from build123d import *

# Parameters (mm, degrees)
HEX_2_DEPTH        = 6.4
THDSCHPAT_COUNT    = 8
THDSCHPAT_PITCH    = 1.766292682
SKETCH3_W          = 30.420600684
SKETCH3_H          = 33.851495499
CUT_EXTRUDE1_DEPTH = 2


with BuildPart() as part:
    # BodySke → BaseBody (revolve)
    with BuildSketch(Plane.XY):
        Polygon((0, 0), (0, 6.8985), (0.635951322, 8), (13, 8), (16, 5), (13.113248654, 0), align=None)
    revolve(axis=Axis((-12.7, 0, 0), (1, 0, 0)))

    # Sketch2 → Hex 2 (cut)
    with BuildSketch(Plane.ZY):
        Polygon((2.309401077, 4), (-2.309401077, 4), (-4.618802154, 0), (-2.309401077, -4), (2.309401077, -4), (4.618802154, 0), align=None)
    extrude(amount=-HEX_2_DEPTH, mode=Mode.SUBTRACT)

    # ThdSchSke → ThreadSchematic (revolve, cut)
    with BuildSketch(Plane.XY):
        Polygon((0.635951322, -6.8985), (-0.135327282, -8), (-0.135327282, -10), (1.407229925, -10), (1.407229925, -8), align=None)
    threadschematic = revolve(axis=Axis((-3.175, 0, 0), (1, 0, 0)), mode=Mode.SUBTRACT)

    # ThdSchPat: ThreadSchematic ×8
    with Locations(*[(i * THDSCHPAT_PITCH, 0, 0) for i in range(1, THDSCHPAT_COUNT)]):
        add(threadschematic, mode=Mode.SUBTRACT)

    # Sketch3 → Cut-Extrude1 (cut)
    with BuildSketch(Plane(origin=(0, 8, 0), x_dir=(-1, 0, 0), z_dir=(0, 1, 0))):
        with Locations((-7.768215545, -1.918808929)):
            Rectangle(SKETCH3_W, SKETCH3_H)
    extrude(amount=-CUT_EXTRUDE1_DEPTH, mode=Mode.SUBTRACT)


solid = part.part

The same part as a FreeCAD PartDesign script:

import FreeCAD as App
import Part
import Sketcher

V = App.Vector
Q = App.Units.Quantity


def add_polygon(sketch, points):
    """Adds a closed chain of lines whose ends are joined by coincident constraints."""
    first, n = sketch.GeometryCount, len(points)
    for a, b in zip(points, points[1:] + points[:1]):
        sketch.addGeometry(Part.LineSegment(App.Vector(*a, 0), App.Vector(*b, 0)), False)
    for i in range(n):
        sketch.addConstraint(Sketcher.Constraint("Coincident", first + i, 2, first + (i + 1) % n, 1))

doc = App.newDocument("Part")
body = doc.addObject("PartDesign::Body", "Body")

sketch1 = body.newObject("Sketcher::SketchObject", "Sketch")
sketch1.AttachmentSupport = (doc.getObject("XY_Plane"), [""])
sketch1.MapMode = "FlatFace"
add_polygon(sketch1, [(0, 6.8985), (0, 0), (13.113249, 0), (16, 5), (13, 8), (0.635951, 8)])
sketch1.addConstraint([
    Sketcher.Constraint("Vertical", 0),
    Sketcher.Constraint("Horizontal", 1),
    Sketcher.Constraint("Horizontal", 4),
    Sketcher.Constraint("Coincident", 0, 2, -1, 1),
    Sketcher.Constraint("Parallel", 2, 5),
    Sketcher.Constraint("Angle", 2, Q("60 deg")),
    Sketcher.Constraint("Angle", 3, Q("135 deg")),
    Sketcher.Constraint("DistanceX", -1, 1, 2, 2, 16.0),
    Sketcher.Constraint("DistanceY", -1, 1, 2, 2, 5.0),
    Sketcher.Constraint("DistanceX", -1, 1, 3, 2, 13.0),
    Sketcher.Constraint("DistanceY", 0, 2, 0, 1, 6.8985),
])
revolution = body.newObject("PartDesign::Revolution", "Revolution")
revolution.Profile = sketch1
revolution.ReferenceAxis = (sketch1, ["H_Axis"])
revolution.Angle = 360

sketch2 = body.newObject("Sketcher::SketchObject", "Sketch001")
sketch2.AttachmentSupport = (doc.getObject("YZ_Plane"), [""])
sketch2.MapMode = "FlatFace"
add_polygon(sketch2, [(4, 2.309401), (4, -2.309401), (0, -4.618802), (-4, -2.309401), (-4, 2.309401), (0, 4.618802)])
sketch2.addConstraint([
    Sketcher.Constraint("Vertical", 0),
    Sketcher.Constraint("Vertical", 3),
    Sketcher.Constraint("Symmetric", 0, 2, 3, 2, -1, 1),
    Sketcher.Constraint("Symmetric", 1, 2, 4, 2, -1, 1),
    Sketcher.Constraint("PointOnObject", 1, 2, -2),
    Sketcher.Constraint("Parallel", 2, 5),
    Sketcher.Constraint("Horizontal", 0, 2, 2, 2),
    Sketcher.Constraint("Angle", 1, Q("-150 deg")),
    Sketcher.Constraint("DistanceX", -1, 1, 0, 2, 4.0),
    Sketcher.Constraint("DistanceY", 0, 2, -1, 1, 2.309401),
])
pocket1 = body.newObject("PartDesign::Pocket", "Pocket")
pocket1.Profile = sketch2
pocket1.Length = 6.4
pocket1.Reversed = True

sketch3 = body.newObject("Sketcher::SketchObject", "Sketch002")
sketch3.AttachmentSupport = (doc.getObject("XY_Plane"), [""])
sketch3.MapMode = "FlatFace"
add_polygon(sketch3, [(0.635951, -6.8985), (-0.135327, -8), (-0.135327, -10), (1.40723, -10), (1.40723, -8)])
sketch3.addConstraint([
    Sketcher.Constraint("Vertical", 1),
    Sketcher.Constraint("Horizontal", 2),
    Sketcher.Constraint("Vertical", 3),
    Sketcher.Constraint("Horizontal", 0, 2, 3, 2),
    Sketcher.Constraint("Equal", 0, 4),
    Sketcher.Constraint("DistanceY", 1, 2, 1, 1, 2.0),
    Sketcher.Constraint("Angle", 0, Q("-125 deg")),
    Sketcher.Constraint("DistanceY", 0, 2, -1, 1, 8.0),
    Sketcher.Constraint("DistanceY", 4, 2, -1, 1, 6.8985),
    Sketcher.Constraint("DistanceX", -1, 1, 2, 2, 1.40723),
])
groove = body.newObject("PartDesign::Groove", "Groove")
groove.Profile = sketch3
groove.ReferenceAxis = (sketch3, ["H_Axis"])
groove.Angle = 360
doc.recompute()

linearpattern = body.newObject("PartDesign::LinearPattern", "LinearPattern")
linearpattern.Originals = [groove]
linearpattern.Direction = (doc.getObject("X_Axis"), [""])
linearpattern.Mode = "offset"
linearpattern.Offset = 1.766293
linearpattern.Occurrences = 8
body.Tip = linearpattern

sketch4 = body.newObject("Sketcher::SketchObject", "Sketch003")
sketch4.AttachmentSupport = (doc.getObject("XZ_Plane"), [""])
sketch4.MapMode = "FlatFace"
sketch4.AttachmentOffset = App.Placement(V(0, 0, -8), App.Rotation())
add_polygon(sketch4, [(22.978516, 15.006939), (22.978516, -18.844557), (-7.442085, -18.844557), (-7.442085, 15.006939)])
sketch4.addConstraint([
    Sketcher.Constraint("Vertical", 0),
    Sketcher.Constraint("Horizontal", 1),
    Sketcher.Constraint("Vertical", 2),
    Sketcher.Constraint("Horizontal", 3),
    Sketcher.Constraint("DistanceX", 1, 2, 1, 1, 30.420601),
    Sketcher.Constraint("DistanceY", 0, 2, 0, 1, 33.851495),
    Sketcher.Constraint("DistanceY", -1, 1, 2, 2, 15.006939),
    Sketcher.Constraint("DistanceX", -1, 1, 0, 2, 22.978516),
])
pocket2 = body.newObject("PartDesign::Pocket", "Pocket001")
pocket2.Profile = sketch4
pocket2.Length = 2
pocket2.Reversed = True

doc.recompute()
